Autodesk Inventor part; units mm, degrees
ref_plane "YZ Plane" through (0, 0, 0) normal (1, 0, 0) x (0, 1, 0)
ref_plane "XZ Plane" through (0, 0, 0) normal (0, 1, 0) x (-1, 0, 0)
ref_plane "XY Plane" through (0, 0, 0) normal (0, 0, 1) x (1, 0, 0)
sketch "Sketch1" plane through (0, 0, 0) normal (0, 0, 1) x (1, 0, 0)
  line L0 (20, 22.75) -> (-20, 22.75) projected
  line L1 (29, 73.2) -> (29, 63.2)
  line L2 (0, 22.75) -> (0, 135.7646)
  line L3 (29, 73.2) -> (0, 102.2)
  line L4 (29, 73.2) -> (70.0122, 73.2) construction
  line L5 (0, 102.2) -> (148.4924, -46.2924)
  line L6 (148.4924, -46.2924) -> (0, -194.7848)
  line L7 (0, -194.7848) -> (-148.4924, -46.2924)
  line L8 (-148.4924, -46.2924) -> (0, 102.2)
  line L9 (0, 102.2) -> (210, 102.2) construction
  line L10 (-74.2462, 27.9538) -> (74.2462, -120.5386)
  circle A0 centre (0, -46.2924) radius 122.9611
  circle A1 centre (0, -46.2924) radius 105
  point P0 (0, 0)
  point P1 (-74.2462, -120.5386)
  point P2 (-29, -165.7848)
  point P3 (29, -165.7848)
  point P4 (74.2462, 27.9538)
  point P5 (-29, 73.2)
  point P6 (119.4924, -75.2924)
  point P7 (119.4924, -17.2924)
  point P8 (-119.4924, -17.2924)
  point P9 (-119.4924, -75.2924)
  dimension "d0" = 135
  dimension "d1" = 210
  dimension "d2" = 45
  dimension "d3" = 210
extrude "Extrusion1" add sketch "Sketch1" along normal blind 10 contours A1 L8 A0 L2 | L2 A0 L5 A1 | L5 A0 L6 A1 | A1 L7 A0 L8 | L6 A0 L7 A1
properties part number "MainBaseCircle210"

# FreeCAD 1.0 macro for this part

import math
import FreeCAD as App
import Part
import Sketcher

doc = App.newDocument("Part")
body = doc.addObject("PartDesign::Body", "Body")
body.AllowCompound = True

sketch1 = doc.addObject("Sketcher::SketchObject", "Sketch")
body.addObject(sketch1)
sketch1.AttachmentSupport = (doc.XY_Plane, [""])
sketch1.MapMode = "FlatFace"
sketch1.addGeometry([
    Part.ArcOfCircle(Part.Circle(App.Vector(0, -46.2924, 0), App.Vector(0, 0, 1), 105), math.radians(45), math.radians(135)),
    Part.LineSegment(App.Vector(74.2462, 27.9538, 0), App.Vector(29, 73.2, 0)),
    Part.ArcOfCircle(Part.Circle(App.Vector(0, -46.2924, 0), App.Vector(0, 0, 1), 122.9611), math.radians(76.358448), math.radians(103.641557)),
    Part.LineSegment(App.Vector(-29.000009, 73.199991, 0), App.Vector(-74.2462, 27.9538, 0)),
    Part.LineSegment(App.Vector(119.492391, -17.292391, 0), App.Vector(74.2462, 27.9538, 0)),
    Part.ArcOfCircle(Part.Circle(App.Vector(0, -46.2924, 0), App.Vector(0, 0, 1), 105), math.radians(-45), math.radians(45)),
    Part.LineSegment(App.Vector(74.2462, -120.5386, 0), App.Vector(119.492391, -75.292409, 0)),
    Part.ArcOfCircle(Part.Circle(App.Vector(0, -46.2924, 0), App.Vector(0, 0, 1), 122.9611), math.radians(-13.641557), math.radians(13.641557)),
    Part.ArcOfCircle(Part.Circle(App.Vector(0, -46.2924, 0), App.Vector(0, 0, 1), 105), math.radians(135), math.radians(225)),
    Part.LineSegment(App.Vector(-74.2462, 27.9538, 0), App.Vector(-119.492391, -17.292391, 0)),
    Part.ArcOfCircle(Part.Circle(App.Vector(0, -46.2924, 0), App.Vector(0, 0, 1), 122.9611), math.radians(166.358443), math.radians(193.641557)),
    Part.LineSegment(App.Vector(-119.492391, -75.292409, 0), App.Vector(-74.2462, -120.5386, 0)),
    Part.LineSegment(App.Vector(29.000009, -165.784791, 0), App.Vector(74.2462, -120.5386, 0)),
    Part.ArcOfCircle(Part.Circle(App.Vector(0, -46.2924, 0), App.Vector(0, 0, 1), 105), math.radians(-135), math.radians(-45)),
    Part.LineSegment(App.Vector(-74.2462, -120.5386, 0), App.Vector(-29.000009, -165.784791, 0)),
    Part.ArcOfCircle(Part.Circle(App.Vector(0, -46.2924, 0), App.Vector(0, 0, 1), 122.9611), math.radians(-103.641557), math.radians(-76.358443)),
], False)
sketch1.addConstraint([
    Sketcher.Constraint("Tangent", 0, 1, 1, 1),
    Sketcher.Constraint("Coincident", 1, 2, 2, 1),
    Sketcher.Constraint("Coincident", 2, 2, 3, 1),
    Sketcher.Constraint("Tangent", 3, 2, 0, 2),
    Sketcher.Constraint("Tangent", 4, 2, 5, 2),
    Sketcher.Constraint("Tangent", 5, 1, 6, 1),
    Sketcher.Constraint("Coincident", 6, 2, 7, 1),
    Sketcher.Constraint("Coincident", 7, 2, 4, 1),
    Sketcher.Constraint("Tangent", 8, 1, 9, 1),
    Sketcher.Constraint("Coincident", 9, 2, 10, 1),
    Sketcher.Constraint("Coincident", 10, 2, 11, 1),
    Sketcher.Constraint("Tangent", 11, 2, 8, 2),
    Sketcher.Constraint("Tangent", 12, 2, 13, 2),
    Sketcher.Constraint("Tangent", 13, 1, 14, 1),
    Sketcher.Constraint("Coincident", 14, 2, 15, 1),
    Sketcher.Constraint("Coincident", 15, 2, 12, 1),
    Sketcher.Constraint("Coincident", 2, 3, 0, 3),
    Sketcher.Constraint("Coincident", 5, 3, 0, 3),
    Sketcher.Constraint("Coincident", 7, 3, 0, 3),
    Sketcher.Constraint("Coincident", 8, 3, 0, 3),
    Sketcher.Constraint("Coincident", 10, 3, 0, 3),
    Sketcher.Constraint("Coincident", 13, 3, 0, 3),
    Sketcher.Constraint("Coincident", 15, 3, 0, 3),
    Sketcher.Constraint("Coincident", 4, 2, 0, 1),
    Sketcher.Constraint("Coincident", 8, 1, 3, 2),
    Sketcher.Constraint("Coincident", 12, 2, 5, 1),
    Sketcher.Constraint("Equal", 2, 7),
    Sketcher.Constraint("Equal", 7, 10),
    Sketcher.Constraint("Equal", 10, 15),
    Sketcher.Constraint("Symmetric", 1, 2, 2, 2, -2),
    Sketcher.Constraint("Perpendicular", 1, 3),
    Sketcher.Constraint("Perpendicular", 4, 6),
    Sketcher.Constraint("Perpendicular", 9, 11),
    Sketcher.Constraint("Perpendicular", 12, 14),
    Sketcher.Constraint("Radius", 0, 105.0),
    Sketcher.Constraint("DistanceX", -1, 1, 1, 2, 29.0),
    Sketcher.Constraint("DistanceY", -1, 1, 1, 2, 73.2),
])
pad1 = doc.addObject("PartDesign::Pad", "Pad")
body.addObject(pad1)
pad1.Profile = sketch1
pad1.Length = 10

doc.recompute()
